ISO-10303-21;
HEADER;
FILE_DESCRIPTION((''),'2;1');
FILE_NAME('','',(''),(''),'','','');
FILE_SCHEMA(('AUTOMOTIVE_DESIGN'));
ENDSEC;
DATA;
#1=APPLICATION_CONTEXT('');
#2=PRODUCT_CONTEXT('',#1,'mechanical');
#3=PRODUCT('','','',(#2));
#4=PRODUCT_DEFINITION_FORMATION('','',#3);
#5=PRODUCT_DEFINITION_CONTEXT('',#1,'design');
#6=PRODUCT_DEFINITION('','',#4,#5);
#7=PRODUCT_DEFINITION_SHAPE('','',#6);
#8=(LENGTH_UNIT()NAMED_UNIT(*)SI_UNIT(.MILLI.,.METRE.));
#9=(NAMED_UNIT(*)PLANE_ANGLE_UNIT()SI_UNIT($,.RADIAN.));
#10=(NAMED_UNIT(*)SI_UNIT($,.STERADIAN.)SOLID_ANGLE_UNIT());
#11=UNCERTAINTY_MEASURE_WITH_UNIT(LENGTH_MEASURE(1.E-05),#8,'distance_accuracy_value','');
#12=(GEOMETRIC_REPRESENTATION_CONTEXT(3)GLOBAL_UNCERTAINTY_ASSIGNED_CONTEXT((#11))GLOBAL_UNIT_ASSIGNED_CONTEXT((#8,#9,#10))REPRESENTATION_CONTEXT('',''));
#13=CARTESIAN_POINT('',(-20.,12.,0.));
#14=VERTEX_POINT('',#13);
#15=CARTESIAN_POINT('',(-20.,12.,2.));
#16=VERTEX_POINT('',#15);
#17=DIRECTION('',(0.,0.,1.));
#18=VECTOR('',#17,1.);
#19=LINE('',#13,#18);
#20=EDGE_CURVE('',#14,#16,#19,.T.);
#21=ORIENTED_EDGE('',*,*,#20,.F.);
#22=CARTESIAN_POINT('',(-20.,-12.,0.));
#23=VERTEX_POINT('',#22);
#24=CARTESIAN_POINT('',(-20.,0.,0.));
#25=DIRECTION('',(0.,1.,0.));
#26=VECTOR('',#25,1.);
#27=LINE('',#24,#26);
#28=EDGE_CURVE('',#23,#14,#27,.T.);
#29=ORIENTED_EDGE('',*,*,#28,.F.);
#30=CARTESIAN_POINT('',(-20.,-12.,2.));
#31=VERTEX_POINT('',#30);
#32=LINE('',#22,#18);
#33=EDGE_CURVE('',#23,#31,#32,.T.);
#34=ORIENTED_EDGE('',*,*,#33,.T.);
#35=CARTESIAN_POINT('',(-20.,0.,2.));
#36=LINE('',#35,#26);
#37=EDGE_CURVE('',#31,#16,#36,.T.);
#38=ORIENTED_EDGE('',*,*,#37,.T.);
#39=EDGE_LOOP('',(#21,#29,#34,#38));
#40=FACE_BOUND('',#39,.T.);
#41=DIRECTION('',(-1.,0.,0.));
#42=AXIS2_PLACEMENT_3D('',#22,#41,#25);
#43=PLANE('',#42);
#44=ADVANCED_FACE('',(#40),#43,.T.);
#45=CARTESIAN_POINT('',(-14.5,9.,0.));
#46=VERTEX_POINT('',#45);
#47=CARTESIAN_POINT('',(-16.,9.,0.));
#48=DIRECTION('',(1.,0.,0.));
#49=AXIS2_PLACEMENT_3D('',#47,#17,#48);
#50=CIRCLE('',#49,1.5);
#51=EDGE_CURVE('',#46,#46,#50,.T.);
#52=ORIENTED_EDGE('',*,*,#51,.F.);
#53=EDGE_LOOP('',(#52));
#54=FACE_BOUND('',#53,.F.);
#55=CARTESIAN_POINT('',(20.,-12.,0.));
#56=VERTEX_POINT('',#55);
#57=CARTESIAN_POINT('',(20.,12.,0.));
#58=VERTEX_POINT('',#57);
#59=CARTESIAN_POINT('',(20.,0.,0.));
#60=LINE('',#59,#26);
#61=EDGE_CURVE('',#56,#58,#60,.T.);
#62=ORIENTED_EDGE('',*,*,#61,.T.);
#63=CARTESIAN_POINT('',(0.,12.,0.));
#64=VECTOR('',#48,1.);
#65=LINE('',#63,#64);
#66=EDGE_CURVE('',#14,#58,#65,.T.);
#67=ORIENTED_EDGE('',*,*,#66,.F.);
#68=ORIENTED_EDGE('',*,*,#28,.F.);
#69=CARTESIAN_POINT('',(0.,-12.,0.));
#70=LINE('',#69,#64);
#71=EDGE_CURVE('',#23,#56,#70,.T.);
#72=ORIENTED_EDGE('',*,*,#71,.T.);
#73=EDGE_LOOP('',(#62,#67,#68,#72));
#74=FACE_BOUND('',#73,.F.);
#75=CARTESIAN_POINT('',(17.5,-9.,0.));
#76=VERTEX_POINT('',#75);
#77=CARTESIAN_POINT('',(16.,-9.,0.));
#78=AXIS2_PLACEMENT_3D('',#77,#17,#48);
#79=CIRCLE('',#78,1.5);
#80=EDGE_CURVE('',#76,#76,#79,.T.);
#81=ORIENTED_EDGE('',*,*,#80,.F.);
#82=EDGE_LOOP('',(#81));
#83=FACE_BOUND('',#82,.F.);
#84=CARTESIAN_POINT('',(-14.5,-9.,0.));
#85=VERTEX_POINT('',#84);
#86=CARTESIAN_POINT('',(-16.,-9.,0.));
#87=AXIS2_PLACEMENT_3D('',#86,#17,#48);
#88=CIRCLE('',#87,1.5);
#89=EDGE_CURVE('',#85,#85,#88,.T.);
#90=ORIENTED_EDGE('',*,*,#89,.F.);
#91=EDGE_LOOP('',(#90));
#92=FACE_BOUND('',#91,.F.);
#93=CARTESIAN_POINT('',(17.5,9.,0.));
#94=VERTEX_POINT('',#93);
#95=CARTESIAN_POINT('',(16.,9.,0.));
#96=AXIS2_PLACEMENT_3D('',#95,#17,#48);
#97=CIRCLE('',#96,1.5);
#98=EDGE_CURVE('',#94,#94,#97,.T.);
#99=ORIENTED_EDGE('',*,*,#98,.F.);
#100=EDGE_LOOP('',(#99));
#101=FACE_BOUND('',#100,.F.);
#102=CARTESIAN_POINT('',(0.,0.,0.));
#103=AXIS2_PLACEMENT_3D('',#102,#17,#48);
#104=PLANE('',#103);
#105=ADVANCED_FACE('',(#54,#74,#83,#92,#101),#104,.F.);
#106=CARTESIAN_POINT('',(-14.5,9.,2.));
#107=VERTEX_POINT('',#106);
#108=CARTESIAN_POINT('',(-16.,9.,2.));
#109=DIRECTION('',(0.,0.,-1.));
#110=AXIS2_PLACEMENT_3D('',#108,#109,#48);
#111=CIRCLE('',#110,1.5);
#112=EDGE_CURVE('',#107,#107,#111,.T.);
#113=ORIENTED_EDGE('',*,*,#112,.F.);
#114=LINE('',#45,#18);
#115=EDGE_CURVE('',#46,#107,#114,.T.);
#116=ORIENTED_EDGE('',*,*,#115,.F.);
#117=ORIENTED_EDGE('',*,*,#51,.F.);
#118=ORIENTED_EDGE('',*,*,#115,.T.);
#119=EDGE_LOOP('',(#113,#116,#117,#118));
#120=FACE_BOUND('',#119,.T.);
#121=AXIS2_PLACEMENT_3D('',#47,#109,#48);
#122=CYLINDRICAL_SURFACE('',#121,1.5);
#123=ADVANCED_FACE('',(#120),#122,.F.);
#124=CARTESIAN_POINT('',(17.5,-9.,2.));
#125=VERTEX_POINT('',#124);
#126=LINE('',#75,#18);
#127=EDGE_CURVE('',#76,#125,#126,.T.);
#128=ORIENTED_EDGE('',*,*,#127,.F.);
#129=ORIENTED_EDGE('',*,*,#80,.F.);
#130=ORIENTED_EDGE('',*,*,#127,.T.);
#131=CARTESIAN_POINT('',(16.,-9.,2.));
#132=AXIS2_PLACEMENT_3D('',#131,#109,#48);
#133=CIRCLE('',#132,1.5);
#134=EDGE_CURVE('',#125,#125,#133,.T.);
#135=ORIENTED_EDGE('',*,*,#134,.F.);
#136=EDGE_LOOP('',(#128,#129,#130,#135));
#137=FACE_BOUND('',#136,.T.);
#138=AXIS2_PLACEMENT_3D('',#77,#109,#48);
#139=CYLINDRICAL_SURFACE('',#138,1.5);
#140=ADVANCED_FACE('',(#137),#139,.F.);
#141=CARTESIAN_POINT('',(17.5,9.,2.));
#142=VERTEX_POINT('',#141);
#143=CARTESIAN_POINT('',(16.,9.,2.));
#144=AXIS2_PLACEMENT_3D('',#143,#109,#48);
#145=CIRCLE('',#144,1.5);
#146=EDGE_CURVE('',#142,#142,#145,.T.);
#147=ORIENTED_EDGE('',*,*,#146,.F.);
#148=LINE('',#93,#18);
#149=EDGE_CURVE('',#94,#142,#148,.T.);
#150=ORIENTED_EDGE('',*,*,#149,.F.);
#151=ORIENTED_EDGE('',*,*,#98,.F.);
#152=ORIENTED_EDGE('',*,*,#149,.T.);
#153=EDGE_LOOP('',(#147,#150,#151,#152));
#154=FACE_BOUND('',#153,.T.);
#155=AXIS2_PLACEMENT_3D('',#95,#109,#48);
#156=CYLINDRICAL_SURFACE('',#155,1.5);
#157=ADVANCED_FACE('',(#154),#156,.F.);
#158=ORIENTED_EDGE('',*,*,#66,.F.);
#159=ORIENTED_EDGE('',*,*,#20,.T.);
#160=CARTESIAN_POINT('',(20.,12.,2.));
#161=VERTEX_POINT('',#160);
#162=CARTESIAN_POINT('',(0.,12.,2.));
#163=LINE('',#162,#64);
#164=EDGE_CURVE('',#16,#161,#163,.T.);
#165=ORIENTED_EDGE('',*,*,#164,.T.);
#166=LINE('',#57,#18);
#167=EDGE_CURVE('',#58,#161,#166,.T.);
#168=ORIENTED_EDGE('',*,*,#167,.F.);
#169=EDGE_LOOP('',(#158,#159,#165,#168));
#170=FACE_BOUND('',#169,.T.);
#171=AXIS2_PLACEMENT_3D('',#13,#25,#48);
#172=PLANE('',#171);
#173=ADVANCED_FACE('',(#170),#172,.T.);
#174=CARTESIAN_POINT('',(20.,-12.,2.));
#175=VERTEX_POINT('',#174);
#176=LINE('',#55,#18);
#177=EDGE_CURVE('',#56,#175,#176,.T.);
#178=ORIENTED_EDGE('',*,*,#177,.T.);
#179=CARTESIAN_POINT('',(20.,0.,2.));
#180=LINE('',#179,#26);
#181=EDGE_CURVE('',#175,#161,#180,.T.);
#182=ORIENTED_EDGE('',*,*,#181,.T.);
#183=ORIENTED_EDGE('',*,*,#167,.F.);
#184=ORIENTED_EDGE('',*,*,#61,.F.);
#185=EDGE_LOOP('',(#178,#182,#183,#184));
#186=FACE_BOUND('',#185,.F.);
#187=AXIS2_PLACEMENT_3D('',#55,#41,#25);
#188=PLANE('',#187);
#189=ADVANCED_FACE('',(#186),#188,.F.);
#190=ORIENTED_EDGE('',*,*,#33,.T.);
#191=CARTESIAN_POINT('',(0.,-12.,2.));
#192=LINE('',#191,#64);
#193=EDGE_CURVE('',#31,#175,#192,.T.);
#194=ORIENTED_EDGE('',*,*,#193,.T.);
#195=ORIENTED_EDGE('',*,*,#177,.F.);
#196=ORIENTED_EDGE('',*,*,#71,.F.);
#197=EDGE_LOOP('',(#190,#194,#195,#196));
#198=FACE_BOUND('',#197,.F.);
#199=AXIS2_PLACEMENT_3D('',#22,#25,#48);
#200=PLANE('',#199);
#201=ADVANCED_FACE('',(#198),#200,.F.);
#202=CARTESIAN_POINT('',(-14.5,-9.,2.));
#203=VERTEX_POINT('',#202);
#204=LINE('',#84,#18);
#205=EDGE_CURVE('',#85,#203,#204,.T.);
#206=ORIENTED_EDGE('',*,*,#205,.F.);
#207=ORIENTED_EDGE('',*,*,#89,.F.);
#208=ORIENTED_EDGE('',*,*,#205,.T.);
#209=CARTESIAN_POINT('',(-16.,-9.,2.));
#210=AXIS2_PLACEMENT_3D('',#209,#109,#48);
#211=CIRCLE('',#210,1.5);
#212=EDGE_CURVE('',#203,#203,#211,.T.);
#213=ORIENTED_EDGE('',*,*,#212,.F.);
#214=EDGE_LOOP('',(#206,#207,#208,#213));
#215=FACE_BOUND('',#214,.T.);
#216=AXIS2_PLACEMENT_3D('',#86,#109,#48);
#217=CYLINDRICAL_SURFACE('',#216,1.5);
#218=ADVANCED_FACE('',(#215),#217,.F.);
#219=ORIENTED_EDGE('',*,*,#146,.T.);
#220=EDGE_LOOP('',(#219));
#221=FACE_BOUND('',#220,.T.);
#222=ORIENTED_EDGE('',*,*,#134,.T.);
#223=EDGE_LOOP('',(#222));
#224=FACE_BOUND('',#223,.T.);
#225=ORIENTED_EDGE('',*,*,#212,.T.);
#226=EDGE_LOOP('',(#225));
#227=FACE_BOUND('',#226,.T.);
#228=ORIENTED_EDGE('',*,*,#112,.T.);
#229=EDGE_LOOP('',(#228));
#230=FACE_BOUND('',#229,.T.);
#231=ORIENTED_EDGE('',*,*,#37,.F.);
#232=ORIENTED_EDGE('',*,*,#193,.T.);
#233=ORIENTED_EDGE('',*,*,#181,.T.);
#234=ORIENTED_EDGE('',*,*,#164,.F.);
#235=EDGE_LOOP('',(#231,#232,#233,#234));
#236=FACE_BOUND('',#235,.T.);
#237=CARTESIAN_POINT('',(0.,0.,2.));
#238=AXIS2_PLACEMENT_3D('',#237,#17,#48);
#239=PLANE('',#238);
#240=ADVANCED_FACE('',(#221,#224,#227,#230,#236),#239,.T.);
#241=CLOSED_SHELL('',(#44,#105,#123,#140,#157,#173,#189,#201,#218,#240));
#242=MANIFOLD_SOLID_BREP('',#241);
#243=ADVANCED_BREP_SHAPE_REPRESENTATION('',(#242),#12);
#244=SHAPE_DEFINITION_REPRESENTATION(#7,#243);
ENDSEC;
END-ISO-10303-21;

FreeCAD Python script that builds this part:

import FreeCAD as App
import Part
import Sketcher
from FreeCAD import Vector
Q = App.Units.Quantity

doc = App.newDocument("Part")
body = doc.addObject("PartDesign::Body", "Body")

# Sketch on XY plane
sketch1 = body.newObject("Sketcher::SketchObject", "Sketch")
sketch1.AttachmentSupport = (doc.getObject("XY_Plane"), [""])
sketch1.MapMode = "FlatFace"
sketch1.addGeometry([
    Part.LineSegment(Vector(-20, 12, 0), Vector(-20, -12, 0)),
    Part.LineSegment(Vector(-20, -12, 0), Vector(20, -12, 0)),
    Part.LineSegment(Vector(20, -12, 0), Vector(20, 12, 0)),
    Part.LineSegment(Vector(20, 12, 0), Vector(-20, 12, 0)),
], False)
sketch1.addConstraint([
    Sketcher.Constraint("Coincident", 0, 2, 1, 1),
    Sketcher.Constraint("Coincident", 1, 2, 2, 1),
    Sketcher.Constraint("Coincident", 2, 2, 3, 1),
    Sketcher.Constraint("Coincident", 3, 2, 0, 1),
    Sketcher.Constraint("Vertical", 0),
    Sketcher.Constraint("Horizontal", 1),
    Sketcher.Constraint("Vertical", 2),
    Sketcher.Constraint("Horizontal", 3),
    Sketcher.Constraint("Symmetric", 0, 2, 2, 2, -1, 1),
    Sketcher.Constraint("DistanceX", 1, 1, 1, 2, Q("40 mm")),
    Sketcher.Constraint("DistanceY", 0, 2, 0, 1, Q("24 mm")),
])
pad1 = body.newObject("PartDesign::Pad", "Pad")
pad1.Profile = sketch1
pad1.Length = 2

# Sketch on XY plane
sketch2 = body.newObject("Sketcher::SketchObject", "Sketch001")
sketch2.AttachmentSupport = (doc.getObject("XY_Plane"), [""])
sketch2.MapMode = "FlatFace"
sketch2.addGeometry([
    Part.Circle(Vector(-16, -9, 0), Vector(0, 0, 1), 1.5),
    Part.Circle(Vector(16, -9, 0), Vector(0, 0, 1), 1.5),
    Part.Circle(Vector(16, 9, 0), Vector(0, 0, 1), 1.5),
    Part.Circle(Vector(-16, 9, 0), Vector(0, 0, 1), 1.5),
], False)
sketch2.addConstraint([
    Sketcher.Constraint("Equal", 0, 1),
    Sketcher.Constraint("Equal", 1, 2),
    Sketcher.Constraint("Equal", 2, 3),
    Sketcher.Constraint("Symmetric", 0, 3, 2, 3, -1, 1),
    Sketcher.Constraint("Symmetric", 1, 3, 3, 3, -1, 1),
    Sketcher.Constraint("Symmetric", 0, 3, 1, 3, -2),
    Sketcher.Constraint("Diameter", 0, Q("3 mm")),
    Sketcher.Constraint("DistanceX", 0, 3, -1, 1, Q("16 mm")),
    Sketcher.Constraint("DistanceY", 0, 3, -1, 1, Q("9 mm")),
])
pocket1 = body.newObject("PartDesign::Pocket", "Pocket")
pocket1.Profile = sketch2
pocket1.Length = 25
pocket1.Reversed = True

doc.recompute()
